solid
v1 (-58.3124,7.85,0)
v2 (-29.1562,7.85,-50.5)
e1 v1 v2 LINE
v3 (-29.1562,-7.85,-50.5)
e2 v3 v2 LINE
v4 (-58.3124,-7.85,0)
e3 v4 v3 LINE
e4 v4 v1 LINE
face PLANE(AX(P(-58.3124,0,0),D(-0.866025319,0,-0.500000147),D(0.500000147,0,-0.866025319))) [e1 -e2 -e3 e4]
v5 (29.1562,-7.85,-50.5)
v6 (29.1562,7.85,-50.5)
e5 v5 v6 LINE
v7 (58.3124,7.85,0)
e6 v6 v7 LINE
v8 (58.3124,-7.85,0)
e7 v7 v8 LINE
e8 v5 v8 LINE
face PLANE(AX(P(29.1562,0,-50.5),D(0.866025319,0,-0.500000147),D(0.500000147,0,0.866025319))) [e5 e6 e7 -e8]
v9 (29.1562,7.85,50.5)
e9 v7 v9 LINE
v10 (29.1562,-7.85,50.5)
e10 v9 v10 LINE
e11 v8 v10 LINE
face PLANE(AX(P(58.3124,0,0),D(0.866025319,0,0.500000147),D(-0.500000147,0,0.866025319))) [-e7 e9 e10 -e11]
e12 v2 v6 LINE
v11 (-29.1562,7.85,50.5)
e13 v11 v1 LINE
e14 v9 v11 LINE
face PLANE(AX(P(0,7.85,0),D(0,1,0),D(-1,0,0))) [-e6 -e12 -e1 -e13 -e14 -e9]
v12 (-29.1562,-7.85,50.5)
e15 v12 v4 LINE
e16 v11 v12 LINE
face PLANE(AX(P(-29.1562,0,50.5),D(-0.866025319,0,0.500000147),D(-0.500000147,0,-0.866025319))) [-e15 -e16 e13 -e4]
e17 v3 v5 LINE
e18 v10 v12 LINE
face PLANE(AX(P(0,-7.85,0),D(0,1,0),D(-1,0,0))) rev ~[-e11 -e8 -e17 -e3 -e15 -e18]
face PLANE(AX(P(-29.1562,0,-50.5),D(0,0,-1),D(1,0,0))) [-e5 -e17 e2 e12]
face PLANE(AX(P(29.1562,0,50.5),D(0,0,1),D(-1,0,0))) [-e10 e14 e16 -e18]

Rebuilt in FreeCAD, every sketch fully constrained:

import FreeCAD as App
import Part
import Sketcher

V = App.Vector
Q = App.Units.Quantity

doc = App.newDocument("Part")
params = doc.addObject("Spreadsheet::Sheet", "Params")
for row, (alias, value) in enumerate([
    ("pad1_length", "15.7 mm"),
], start=1):
    params.set(f"A{row}", alias)
    params.set(f"B{row}", "=" + value)
    params.setAlias(f"B{row}", alias)

body = doc.addObject("PartDesign::Body", "Body")

# Sketch on XZ plane
sketch1 = body.newObject("Sketcher::SketchObject", "Sketch")
sketch1.AttachmentSupport = (doc.getObject("XZ_Plane"), [""])
sketch1.MapMode = "FlatFace"
sketch1.addGeometry([
    Part.LineSegment(V(58, 0, 0), V(29, -50, 0)),  # 0
    Part.LineSegment(V(29, -50, 0), V(-29, -50, 0)),  # 1
    Part.LineSegment(V(-29, -50, 0), V(-58, 0, 0)),  # 2
    Part.LineSegment(V(-58, 0, 0), V(-29, 50, 0)),  # 3
    Part.LineSegment(V(-29, 50, 0), V(29, 50, 0)),  # 4
    Part.LineSegment(V(29, 50, 0), V(58, 0, 0)),  # 5
], False)
sketch1.addConstraint([
    Sketcher.Constraint("Coincident", 0, 2, 1, 1),
    Sketcher.Constraint("Coincident", 1, 2, 2, 1),
    Sketcher.Constraint("Coincident", 2, 2, 3, 1),
    Sketcher.Constraint("Coincident", 3, 2, 4, 1),
    Sketcher.Constraint("Coincident", 4, 2, 5, 1),
    Sketcher.Constraint("Coincident", 5, 2, 0, 1),
    Sketcher.Constraint("Horizontal", 1),
    Sketcher.Constraint("Horizontal", 4),
    Sketcher.Constraint("Symmetric", 0, 2, 3, 2, -1, 1),
    Sketcher.Constraint("Symmetric", 2, 2, 5, 2, -1, 1),
    Sketcher.Constraint("PointOnObject", 2, 2, -1),
    Sketcher.Constraint("Parallel", 2, 5),
    Sketcher.Constraint("Vertical", 1, 2, 3, 2),
    Sketcher.Constraint("DistanceY", 1, 2, 3, 2, Q("101 mm")),
    Sketcher.Constraint("Angle", 0, Q("-120 deg")),
    Sketcher.Constraint("DistanceX", 1, 2, 1, 1, Q("58.3124 mm")),
])
pad1 = body.newObject("PartDesign::Pad", "Pad")
pad1.Profile = sketch1
pad1.setExpression("Length", "Params.pad1_length")
pad1.Midplane = True

doc.recompute()
